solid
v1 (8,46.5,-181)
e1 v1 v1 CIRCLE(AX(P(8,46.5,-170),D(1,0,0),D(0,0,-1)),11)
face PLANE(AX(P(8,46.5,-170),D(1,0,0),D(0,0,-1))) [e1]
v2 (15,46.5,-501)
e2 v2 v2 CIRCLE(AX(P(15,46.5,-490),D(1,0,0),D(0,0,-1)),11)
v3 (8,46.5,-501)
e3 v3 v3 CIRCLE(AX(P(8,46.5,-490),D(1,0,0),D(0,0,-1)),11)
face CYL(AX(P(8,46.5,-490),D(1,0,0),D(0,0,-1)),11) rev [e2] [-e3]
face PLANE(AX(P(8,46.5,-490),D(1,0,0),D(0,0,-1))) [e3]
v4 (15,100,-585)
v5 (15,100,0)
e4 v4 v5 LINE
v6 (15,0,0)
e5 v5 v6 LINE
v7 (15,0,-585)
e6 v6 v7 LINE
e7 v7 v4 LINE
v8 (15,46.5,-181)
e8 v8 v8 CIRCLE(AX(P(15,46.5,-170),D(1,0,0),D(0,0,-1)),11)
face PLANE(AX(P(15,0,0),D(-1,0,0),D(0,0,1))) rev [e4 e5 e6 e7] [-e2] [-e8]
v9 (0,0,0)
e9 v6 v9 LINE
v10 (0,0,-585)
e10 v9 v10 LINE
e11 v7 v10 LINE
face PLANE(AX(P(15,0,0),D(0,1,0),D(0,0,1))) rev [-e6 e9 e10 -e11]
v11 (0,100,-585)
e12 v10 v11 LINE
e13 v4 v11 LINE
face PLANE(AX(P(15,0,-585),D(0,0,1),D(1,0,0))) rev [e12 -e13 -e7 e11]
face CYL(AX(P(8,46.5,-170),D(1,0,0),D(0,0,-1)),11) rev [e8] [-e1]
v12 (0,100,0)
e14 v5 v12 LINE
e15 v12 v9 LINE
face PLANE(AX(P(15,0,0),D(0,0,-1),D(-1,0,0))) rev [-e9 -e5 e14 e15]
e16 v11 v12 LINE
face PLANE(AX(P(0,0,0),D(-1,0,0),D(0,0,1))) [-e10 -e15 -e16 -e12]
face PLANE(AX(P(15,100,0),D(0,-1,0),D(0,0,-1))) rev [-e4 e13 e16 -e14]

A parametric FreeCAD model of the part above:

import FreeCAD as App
import Part
import Sketcher

V = App.Vector

doc = App.newDocument("Part")
params = doc.addObject("Spreadsheet::Sheet", "Params")
for row, (alias, value) in enumerate([
    ("sketch1_width", "100 mm"),
    ("sketch1_height", "585 mm"),
    ("pad1_length", "15 mm"),
    ("sketch2_diameter", "22 mm"),
    ("pocket1_length", "7 mm"),
], start=1):
    params.set(f"A{row}", alias)
    params.set(f"B{row}", "=" + value)
    params.setAlias(f"B{row}", alias)

body = doc.addObject("PartDesign::Body", "Body")

# Sketch on YZ plane
sketch1 = body.newObject("Sketcher::SketchObject", "Sketch")
sketch1.AttachmentSupport = (doc.getObject("YZ_Plane"), [""])
sketch1.MapMode = "FlatFace"
sketch1.addGeometry(Part.LineSegment(V(100, 0, 0), V(0, 0, 0)), False)
sketch1.addGeometry(Part.LineSegment(V(0, 0, 0), V(0, -585, 0)), False)
sketch1.addGeometry(Part.LineSegment(V(0, -585, 0), V(100, -585, 0)), False)
sketch1.addGeometry(Part.LineSegment(V(100, -585, 0), V(100, 0, 0)), False)
sketch1.addConstraint(Sketcher.Constraint("Coincident", 0, 2, 1, 1))
sketch1.addConstraint(Sketcher.Constraint("Coincident", 1, 2, 2, 1))
sketch1.addConstraint(Sketcher.Constraint("Coincident", 2, 2, 3, 1))
sketch1.addConstraint(Sketcher.Constraint("Coincident", 3, 2, 0, 1))
sketch1.addConstraint(Sketcher.Constraint("Horizontal", 0))
sketch1.addConstraint(Sketcher.Constraint("Vertical", 1))
sketch1.addConstraint(Sketcher.Constraint("Horizontal", 2))
sketch1.addConstraint(Sketcher.Constraint("Vertical", 3))
sketch1.addConstraint(Sketcher.Constraint("Coincident", 0, 2, -1, 1))
sketch1.addConstraint(Sketcher.Constraint("DistanceX", 0, 2, 0, 1, 100.0))
sketch1.addConstraint(Sketcher.Constraint("DistanceY", 1, 2, 1, 1, 585.0))
sketch1.setExpression("Constraints[9]", "Params.sketch1_width")
sketch1.setExpression("Constraints[10]", "Params.sketch1_height")
pad1 = body.newObject("PartDesign::Pad", "Pad")
pad1.Profile = sketch1
pad1.setExpression("Length", "Params.pad1_length")

# Sketch on YZ plane
sketch2 = body.newObject("Sketcher::SketchObject", "Sketch001")
sketch2.AttachmentSupport = (doc.getObject("YZ_Plane"), [""])
sketch2.MapMode = "FlatFace"
sketch2.AttachmentOffset = App.Placement(V(0, 0, 15), App.Rotation())
sketch2.addGeometry(Part.Circle(V(46.5, -170, 0), V(0, 0, 1), 11), False)
sketch2.addGeometry(Part.Circle(V(46.5, -490, 0), V(0, 0, 1), 11), False)
sketch2.addConstraint(Sketcher.Constraint("Equal", 0, 1))
sketch2.addConstraint(Sketcher.Constraint("Vertical", 0, 3, 1, 3))
sketch2.addConstraint(Sketcher.Constraint("Diameter", 0, 22.0))
sketch2.addConstraint(Sketcher.Constraint("DistanceY", 0, 3, -1, 1, 170.0))
sketch2.addConstraint(Sketcher.Constraint("DistanceY", 1, 3, -1, 1, 490.0))
sketch2.addConstraint(Sketcher.Constraint("DistanceX", -1, 1, 0, 3, 46.5))
sketch2.setExpression("Constraints[2]", "Params.sketch2_diameter")
pocket1 = body.newObject("PartDesign::Pocket", "Pocket")
pocket1.Profile = sketch2
pocket1.setExpression("Length", "Params.pocket1_length")

doc.recompute()
